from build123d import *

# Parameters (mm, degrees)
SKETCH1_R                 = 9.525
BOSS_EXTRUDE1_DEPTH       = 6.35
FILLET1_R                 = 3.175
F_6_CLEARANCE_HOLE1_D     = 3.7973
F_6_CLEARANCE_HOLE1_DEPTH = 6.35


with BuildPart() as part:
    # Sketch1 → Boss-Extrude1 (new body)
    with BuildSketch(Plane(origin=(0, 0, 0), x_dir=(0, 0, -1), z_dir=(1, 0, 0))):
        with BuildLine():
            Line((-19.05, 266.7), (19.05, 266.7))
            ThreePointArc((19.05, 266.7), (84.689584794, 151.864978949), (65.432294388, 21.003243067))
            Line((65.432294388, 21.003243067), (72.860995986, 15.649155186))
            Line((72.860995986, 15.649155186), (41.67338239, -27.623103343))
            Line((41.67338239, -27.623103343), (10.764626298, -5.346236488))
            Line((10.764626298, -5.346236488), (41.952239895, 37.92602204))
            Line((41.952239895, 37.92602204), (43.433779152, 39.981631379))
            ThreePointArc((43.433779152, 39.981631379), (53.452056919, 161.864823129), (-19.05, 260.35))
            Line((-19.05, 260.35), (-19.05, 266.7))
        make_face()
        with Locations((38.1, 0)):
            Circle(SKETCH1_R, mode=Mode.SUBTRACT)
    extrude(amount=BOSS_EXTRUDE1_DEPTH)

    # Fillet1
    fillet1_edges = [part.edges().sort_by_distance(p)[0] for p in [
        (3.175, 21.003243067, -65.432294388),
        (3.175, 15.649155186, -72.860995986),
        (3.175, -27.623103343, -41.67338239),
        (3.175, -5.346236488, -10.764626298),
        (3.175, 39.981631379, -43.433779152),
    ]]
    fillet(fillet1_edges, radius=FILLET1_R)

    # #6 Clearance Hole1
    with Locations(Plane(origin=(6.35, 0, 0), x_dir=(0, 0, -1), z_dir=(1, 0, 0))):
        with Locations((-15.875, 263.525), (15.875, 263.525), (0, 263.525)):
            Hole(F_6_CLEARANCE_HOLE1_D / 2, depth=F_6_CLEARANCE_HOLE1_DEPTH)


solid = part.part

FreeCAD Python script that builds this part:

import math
import FreeCAD as App
import Part
import Sketcher

V = App.Vector
Q = App.Units.Quantity


def edges_at(feature, points):
    """Names of the edges that pass closest to the given points."""
    edges = feature.Shape.Edges
    near = lambda p: min(range(len(edges)), key=lambda i: edges[i].distToShape(Part.Vertex(*p))[0])
    return sorted({f"Edge{near(p) + 1}" for p in points})

doc = App.newDocument("Part")
body = doc.addObject("PartDesign::Body", "Body")

# Sketch on YZ plane
sketch1 = body.newObject("Sketcher::SketchObject", "Sketch")
sketch1.AttachmentSupport = (doc.getObject("YZ_Plane"), [""])
sketch1.MapMode = "FlatFace"
sketch1.addGeometry([
    Part.LineSegment(V(266.7, -19.1, 0), V(266.7, 19.1, 0)),  # 0
    Part.LineSegment(V(266.7, 19.1, 0), V(260.4, 19.1, 0)),  # 1
    Part.ArcOfCircle(Part.Circle(V(114.3, 114.3, 0), V(0, 0, 1), 174.4), math.radians(-115), math.radians(-33)),  # 2
    Part.LineSegment(V(40, -43.4, 0), V(37.9, -42, 0)),  # 3
    Part.LineSegment(V(37.9, -42, 0), V(-5.3, -10.8, 0)),  # 4
    Part.LineSegment(V(-5.3, -10.8, 0), V(-27.6, -41.7, 0)),  # 5
    Part.LineSegment(V(-27.6, -41.7, 0), V(15.6, -72.9, 0)),  # 6
    Part.LineSegment(V(15.6, -72.9, 0), V(21, -65.4, 0)),  # 7
    Part.ArcOfCircle(Part.Circle(V(114.3, 114.3, 0), V(0, 0, 1), 202.5), math.radians(-117), math.radians(-41)),  # 8
    Part.Circle(V(0, -38.1, 0), V(0, 0, 1), 9.5),  # 9
], False)
sketch1.addConstraint([
    Sketcher.Constraint("Coincident", 0, 2, 1, 1),
    Sketcher.Constraint("Coincident", 1, 2, 2, 2),
    Sketcher.Constraint("Coincident", 2, 1, 3, 1),
    Sketcher.Constraint("Coincident", 3, 2, 4, 1),
    Sketcher.Constraint("Coincident", 4, 2, 5, 1),
    Sketcher.Constraint("Coincident", 5, 2, 6, 1),
    Sketcher.Constraint("Coincident", 6, 2, 7, 1),
    Sketcher.Constraint("Coincident", 7, 2, 8, 1),
    Sketcher.Constraint("Coincident", 8, 2, 0, 1),
    Sketcher.Constraint("Vertical", 0),
    Sketcher.Constraint("Horizontal", 1),
    Sketcher.Constraint("Coincident", 8, 3, 2, 3),
    Sketcher.Constraint("PointOnObject", 9, 3, -2),
    Sketcher.Constraint("Parallel", 3, 4),
    Sketcher.Constraint("Perpendicular", 4, 5),
    Sketcher.Constraint("Perpendicular", 5, 6),
    Sketcher.Constraint("Perpendicular", 6, 7),
    Sketcher.Constraint("Equal", 4, 6),
    Sketcher.Constraint("Diameter", 9, Q("0.75 in")),
    Sketcher.Constraint("DistanceY", 0, 1, 0, 2, Q("1.5 in")),
    Sketcher.Constraint("DistanceY", 9, 3, 2, 3, Q("6 in")),
    Sketcher.Constraint("DistanceX", 2, 3, 0, 2, Q("6 in")),
    Sketcher.Constraint("Distance", 4, Q("2.1 in")),
    Sketcher.Constraint("Distance", 5, Q("1.5 in")),
    Sketcher.Constraint("DistanceX", 1, 2, 1, 1, Q("0.25 in")),
    Sketcher.Constraint("DistanceX", -1, 1, 2, 3, Q("4.5 in")),
    Sketcher.Constraint("DistanceY", -1, 1, 2, 3, Q("4.5 in")),
    Sketcher.Constraint("DistanceY", -1, 1, 0, 2, Q("0.75 in")),
    Sketcher.Constraint("DistanceY", 6, 2, 7, 2, Q("7.428702 mm")),
    Sketcher.Constraint("Distance", 3, Q("2.533868 mm")),
    Sketcher.Constraint("DistanceY", 3, 2, -1, 1, Q("41.95224 mm")),
])
pad1 = body.newObject("PartDesign::Pad", "Pad")
pad1.Profile = sketch1
pad1.Length = Q("0.25 in")
doc.recompute()

fillet = body.newObject("PartDesign::Fillet", "Fillet")
fillet.Base = (pad1, edges_at(pad1, [
    (3.175, 21.003, -65.432),
    (3.175, 15.649, -72.861),
    (3.175, -27.623, -41.673),
    (3.175, -5.346, -10.765),
    (3.175, 39.982, -43.434),
]))
fillet.Radius = Q("0.125 in")

# Sketch on YZ plane
sketch2 = body.newObject("Sketcher::SketchObject", "Sketch001")
sketch2.AttachmentSupport = (doc.getObject("YZ_Plane"), [""])
sketch2.MapMode = "FlatFace"
sketch2.AttachmentOffset = App.Placement(V(0, 0, 0.25 * 25.4), App.Rotation())
sketch2.addGeometry([
    Part.Circle(V(263.5, 15.9, 0), V(0, 0, 1), 1.9),
    Part.Circle(V(263.5, -15.9, 0), V(0, 0, 1), 1.9),
    Part.Circle(V(263.5, 0, 0), V(0, 0, 1), 1.9),
], False)
sketch2.addConstraint([
    Sketcher.Constraint("Equal", 0, 1),
    Sketcher.Constraint("Equal", 1, 2),
    Sketcher.Constraint("Symmetric", 0, 3, 1, 3, -1),
    Sketcher.Constraint("PointOnObject", 2, 3, -1),
    Sketcher.Constraint("Vertical", 1, 3, 2, 3),
    Sketcher.Constraint("Diameter", 0, Q("0.1495 in")),
    Sketcher.Constraint("DistanceY", 1, 3, 0, 3, Q("1.25 in")),
    Sketcher.Constraint("DistanceX", -1, 1, 0, 3, Q("10.375 in")),
])
doc.recompute()
hole = body.newObject("PartDesign::Hole", "Hole")
hole.Profile = sketch2
hole.ThreadType = "None"
hole.Diameter = Q("0.1495 in")
hole.DepthType = "Dimension"
hole.Depth = Q("0.25 in")
hole.DrillPoint = "Flat"

doc.recompute()
